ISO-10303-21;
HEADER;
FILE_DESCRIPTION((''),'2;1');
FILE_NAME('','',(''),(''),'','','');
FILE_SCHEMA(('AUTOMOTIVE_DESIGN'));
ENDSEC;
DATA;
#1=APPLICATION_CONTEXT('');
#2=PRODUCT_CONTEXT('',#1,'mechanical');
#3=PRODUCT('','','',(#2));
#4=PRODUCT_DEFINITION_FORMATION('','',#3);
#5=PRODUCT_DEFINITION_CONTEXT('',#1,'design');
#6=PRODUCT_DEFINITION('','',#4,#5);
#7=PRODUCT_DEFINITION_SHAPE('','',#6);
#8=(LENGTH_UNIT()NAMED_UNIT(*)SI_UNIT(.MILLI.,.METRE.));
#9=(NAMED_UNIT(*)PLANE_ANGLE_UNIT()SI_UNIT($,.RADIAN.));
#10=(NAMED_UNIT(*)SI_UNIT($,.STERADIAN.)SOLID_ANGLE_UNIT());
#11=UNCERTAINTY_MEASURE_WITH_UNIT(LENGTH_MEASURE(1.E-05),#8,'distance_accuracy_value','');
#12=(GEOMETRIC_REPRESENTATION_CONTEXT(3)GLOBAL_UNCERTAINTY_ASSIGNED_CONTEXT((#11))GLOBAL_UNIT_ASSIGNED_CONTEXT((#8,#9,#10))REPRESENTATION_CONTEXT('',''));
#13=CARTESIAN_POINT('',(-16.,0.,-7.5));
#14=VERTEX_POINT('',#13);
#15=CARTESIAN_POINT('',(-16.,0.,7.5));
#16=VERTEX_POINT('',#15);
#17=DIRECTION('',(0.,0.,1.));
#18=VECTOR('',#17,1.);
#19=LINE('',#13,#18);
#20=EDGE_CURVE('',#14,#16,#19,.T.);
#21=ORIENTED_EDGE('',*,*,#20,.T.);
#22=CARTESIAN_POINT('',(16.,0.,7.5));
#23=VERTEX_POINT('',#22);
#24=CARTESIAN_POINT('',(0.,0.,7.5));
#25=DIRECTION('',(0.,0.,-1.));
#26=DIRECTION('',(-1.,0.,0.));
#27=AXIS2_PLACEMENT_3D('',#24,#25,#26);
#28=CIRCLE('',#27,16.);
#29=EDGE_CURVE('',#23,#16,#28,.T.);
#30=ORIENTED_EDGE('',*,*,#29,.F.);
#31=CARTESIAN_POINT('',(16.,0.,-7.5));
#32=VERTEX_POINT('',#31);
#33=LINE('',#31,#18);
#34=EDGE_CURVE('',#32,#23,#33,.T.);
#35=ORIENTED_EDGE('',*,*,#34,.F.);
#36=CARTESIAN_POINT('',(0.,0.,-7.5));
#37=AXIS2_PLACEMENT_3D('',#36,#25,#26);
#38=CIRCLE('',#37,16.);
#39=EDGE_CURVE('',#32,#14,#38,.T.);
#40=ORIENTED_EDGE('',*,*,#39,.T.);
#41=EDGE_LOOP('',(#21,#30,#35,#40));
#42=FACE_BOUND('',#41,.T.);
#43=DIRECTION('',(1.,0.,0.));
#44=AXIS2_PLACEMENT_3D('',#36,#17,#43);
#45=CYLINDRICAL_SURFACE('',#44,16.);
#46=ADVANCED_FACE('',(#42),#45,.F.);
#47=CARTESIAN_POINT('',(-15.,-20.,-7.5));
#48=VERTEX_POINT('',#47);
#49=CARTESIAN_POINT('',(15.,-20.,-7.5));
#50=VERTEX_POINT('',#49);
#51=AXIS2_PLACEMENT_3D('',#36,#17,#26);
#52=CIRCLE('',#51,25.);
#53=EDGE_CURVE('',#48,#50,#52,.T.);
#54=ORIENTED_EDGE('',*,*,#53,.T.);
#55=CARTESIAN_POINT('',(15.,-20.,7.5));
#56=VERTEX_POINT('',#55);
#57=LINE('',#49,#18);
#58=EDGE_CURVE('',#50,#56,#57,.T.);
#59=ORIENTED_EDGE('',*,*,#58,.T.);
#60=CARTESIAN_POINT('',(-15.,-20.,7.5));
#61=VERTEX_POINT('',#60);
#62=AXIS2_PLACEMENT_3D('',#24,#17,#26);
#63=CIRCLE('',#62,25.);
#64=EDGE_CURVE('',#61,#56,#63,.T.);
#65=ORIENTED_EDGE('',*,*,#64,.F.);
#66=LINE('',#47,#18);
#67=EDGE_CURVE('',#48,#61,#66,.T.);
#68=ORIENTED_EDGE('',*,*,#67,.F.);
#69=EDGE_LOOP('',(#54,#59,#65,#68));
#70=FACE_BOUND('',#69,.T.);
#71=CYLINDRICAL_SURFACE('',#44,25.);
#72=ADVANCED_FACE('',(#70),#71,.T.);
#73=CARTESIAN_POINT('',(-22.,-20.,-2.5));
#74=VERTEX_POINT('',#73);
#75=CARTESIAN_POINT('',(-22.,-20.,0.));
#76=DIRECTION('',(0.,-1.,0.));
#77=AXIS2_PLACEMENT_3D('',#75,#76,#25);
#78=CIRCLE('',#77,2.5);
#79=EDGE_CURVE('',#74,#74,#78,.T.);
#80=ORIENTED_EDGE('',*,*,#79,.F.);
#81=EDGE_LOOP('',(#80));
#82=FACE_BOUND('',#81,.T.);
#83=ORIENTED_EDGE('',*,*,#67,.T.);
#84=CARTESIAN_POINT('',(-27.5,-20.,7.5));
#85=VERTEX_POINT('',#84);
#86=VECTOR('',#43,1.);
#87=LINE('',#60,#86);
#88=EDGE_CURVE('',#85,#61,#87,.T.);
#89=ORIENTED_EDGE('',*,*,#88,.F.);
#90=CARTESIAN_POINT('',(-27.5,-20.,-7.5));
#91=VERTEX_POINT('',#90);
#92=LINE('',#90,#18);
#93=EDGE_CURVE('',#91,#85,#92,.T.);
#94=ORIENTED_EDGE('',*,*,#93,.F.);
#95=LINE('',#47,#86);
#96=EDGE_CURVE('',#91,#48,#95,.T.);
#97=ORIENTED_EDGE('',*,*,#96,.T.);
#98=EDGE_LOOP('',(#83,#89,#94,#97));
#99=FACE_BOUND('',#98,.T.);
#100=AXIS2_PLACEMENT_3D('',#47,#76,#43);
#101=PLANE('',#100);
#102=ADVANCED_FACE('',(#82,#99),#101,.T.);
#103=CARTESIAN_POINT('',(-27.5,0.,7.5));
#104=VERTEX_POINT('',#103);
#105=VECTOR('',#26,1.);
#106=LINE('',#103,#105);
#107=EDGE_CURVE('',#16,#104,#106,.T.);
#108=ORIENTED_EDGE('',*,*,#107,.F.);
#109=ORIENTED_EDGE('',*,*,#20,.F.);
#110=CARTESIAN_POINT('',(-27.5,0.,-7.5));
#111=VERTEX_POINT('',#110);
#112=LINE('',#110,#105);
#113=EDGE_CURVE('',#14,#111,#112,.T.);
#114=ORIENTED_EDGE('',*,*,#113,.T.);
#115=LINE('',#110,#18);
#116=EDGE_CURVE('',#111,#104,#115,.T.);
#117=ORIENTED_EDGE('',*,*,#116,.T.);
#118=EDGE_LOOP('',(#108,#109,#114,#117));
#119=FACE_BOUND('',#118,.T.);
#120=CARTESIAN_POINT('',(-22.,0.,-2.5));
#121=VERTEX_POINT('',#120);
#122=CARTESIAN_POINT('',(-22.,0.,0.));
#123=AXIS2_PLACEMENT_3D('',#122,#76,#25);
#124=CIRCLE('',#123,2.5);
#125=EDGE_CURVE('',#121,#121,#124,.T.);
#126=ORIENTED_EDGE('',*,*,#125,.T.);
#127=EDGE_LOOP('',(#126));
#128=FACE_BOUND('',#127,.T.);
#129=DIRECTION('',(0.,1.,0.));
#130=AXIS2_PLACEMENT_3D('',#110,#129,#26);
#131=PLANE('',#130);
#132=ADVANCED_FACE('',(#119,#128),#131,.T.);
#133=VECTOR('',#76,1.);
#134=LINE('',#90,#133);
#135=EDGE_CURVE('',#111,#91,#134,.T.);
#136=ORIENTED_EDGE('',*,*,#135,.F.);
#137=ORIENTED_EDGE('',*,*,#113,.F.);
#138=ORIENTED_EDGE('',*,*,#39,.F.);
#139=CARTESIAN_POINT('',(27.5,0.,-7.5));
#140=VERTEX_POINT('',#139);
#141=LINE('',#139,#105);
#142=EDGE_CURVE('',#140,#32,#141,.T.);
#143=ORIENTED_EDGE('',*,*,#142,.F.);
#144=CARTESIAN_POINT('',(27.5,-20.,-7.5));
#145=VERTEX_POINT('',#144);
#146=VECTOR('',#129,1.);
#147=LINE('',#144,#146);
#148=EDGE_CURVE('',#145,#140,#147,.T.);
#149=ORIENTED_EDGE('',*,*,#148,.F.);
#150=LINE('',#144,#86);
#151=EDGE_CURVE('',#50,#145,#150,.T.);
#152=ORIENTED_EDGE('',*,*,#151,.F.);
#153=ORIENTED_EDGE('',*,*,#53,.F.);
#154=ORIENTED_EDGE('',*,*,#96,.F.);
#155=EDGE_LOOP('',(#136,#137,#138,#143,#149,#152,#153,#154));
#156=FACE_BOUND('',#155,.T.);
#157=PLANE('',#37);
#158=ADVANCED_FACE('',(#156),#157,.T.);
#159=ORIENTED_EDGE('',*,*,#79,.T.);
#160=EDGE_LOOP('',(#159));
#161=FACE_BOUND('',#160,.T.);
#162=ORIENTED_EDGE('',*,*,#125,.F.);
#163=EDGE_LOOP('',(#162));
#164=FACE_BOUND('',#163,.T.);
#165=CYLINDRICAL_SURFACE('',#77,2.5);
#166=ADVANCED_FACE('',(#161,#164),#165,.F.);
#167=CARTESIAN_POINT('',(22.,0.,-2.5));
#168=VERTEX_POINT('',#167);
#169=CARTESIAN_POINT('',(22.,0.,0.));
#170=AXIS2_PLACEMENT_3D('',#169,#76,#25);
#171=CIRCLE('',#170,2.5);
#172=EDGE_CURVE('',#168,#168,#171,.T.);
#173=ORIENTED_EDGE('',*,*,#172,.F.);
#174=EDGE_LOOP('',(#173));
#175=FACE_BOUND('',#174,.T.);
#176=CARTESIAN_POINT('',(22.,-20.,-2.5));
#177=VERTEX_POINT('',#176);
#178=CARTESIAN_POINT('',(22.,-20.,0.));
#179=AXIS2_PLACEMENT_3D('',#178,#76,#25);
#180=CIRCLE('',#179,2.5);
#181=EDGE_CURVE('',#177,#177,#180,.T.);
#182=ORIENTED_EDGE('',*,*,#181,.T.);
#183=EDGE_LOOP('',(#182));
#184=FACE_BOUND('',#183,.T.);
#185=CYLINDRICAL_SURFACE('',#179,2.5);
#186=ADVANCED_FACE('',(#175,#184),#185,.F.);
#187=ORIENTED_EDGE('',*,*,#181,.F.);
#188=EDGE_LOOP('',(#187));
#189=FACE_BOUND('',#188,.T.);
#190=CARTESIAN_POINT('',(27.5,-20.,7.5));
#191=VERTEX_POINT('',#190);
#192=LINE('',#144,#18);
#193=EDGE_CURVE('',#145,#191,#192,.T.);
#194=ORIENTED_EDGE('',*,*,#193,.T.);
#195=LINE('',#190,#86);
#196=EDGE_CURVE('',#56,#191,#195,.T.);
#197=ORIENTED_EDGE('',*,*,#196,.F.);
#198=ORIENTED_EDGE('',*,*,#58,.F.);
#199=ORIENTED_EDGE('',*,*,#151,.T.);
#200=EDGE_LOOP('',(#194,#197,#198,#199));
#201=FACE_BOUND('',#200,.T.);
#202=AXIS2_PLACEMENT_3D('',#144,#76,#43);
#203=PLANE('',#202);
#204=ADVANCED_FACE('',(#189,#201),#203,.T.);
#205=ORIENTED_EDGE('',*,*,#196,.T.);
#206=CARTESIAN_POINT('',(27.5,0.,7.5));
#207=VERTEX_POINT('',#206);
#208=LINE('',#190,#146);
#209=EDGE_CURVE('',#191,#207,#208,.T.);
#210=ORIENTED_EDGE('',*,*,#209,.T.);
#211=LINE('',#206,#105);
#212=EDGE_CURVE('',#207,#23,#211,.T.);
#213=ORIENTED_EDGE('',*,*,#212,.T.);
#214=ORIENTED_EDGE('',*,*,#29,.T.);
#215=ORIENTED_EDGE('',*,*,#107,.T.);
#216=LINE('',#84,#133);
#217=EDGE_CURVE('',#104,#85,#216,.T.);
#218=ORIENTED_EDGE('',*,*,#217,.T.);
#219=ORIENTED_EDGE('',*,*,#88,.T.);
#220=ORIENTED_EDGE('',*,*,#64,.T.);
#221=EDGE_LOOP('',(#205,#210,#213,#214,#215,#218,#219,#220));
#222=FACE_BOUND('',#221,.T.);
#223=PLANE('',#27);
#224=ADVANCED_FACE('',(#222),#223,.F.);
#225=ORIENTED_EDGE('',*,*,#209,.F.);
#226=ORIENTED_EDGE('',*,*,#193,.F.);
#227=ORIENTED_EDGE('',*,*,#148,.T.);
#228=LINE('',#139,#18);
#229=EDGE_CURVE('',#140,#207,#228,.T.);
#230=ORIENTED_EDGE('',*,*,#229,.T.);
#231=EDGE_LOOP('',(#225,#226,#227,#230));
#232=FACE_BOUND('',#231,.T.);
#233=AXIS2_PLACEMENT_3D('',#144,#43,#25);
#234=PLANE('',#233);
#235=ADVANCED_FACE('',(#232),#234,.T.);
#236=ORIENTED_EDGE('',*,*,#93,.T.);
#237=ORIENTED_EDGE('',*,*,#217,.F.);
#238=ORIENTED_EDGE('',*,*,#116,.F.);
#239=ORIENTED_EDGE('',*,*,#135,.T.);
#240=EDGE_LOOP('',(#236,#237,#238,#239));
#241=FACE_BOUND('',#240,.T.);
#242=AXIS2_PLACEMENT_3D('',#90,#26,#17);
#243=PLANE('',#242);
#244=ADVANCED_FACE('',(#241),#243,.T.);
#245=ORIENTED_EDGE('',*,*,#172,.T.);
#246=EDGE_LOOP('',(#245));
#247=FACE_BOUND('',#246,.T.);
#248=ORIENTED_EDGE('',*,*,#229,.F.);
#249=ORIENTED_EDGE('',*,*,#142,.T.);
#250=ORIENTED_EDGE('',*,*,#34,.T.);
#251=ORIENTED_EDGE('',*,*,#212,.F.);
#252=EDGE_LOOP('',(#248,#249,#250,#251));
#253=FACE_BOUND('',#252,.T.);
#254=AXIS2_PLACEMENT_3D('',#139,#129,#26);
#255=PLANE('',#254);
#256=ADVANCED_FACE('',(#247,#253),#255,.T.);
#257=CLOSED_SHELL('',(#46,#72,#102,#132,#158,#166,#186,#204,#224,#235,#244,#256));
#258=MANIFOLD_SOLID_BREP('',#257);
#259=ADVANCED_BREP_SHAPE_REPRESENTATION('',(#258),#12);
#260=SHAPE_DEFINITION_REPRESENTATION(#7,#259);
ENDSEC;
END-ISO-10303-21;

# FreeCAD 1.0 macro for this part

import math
import FreeCAD as App
import Part
import Sketcher
from FreeCAD import Vector
Q = App.Units.Quantity

doc = App.newDocument("Part")
params = doc.addObject("Spreadsheet::Sheet", "Params")
for row, (alias, value) in enumerate([
    ("sketch1_radius", "25 mm"),
    ("sketch1_radius2", "16 mm"),
    ("sketch1_height", "20 mm"),
    ("sketch1_width", "11.5 mm"),
    ("pad1_length", "7.5 mm"),
    ("pad1_length2", "7.5 mm"),
    ("sketch2_diameter", "5 mm"),
    ("hole_diameter", "5 mm"),
], start=1):
    params.set(f"A{row}", alias)
    params.set(f"B{row}", "=" + value)
    params.setAlias(f"B{row}", alias)

body = doc.addObject("PartDesign::Body", "Body")

sketch1 = doc.addObject("Sketcher::SketchObject", "Sketch")
body.addObject(sketch1)
sketch1.AttachmentSupport = (doc.XY_Plane, [""])
sketch1.MapMode = "FlatFace"
sketch1.addGeometry(Part.LineSegment(Vector(-16, 0, 0), Vector(-28, 0, 0)), False)
sketch1.addGeometry(Part.LineSegment(Vector(-28, 0, 0), Vector(-28, -20, 0)), False)
sketch1.addGeometry(Part.LineSegment(Vector(-28, -20, 0), Vector(-15, -20, 0)), False)
sketch1.addGeometry(Part.ArcOfCircle(Part.Circle(Vector(0, 0, 0), Vector(0, 0, 1), 25), math.radians(-127), math.radians(-53)), False)
sketch1.addGeometry(Part.LineSegment(Vector(15, -20, 0), Vector(28, -20, 0)), False)
sketch1.addGeometry(Part.LineSegment(Vector(28, -20, 0), Vector(28, 0, 0)), False)
sketch1.addGeometry(Part.LineSegment(Vector(28, 0, 0), Vector(16, 0, 0)), False)
sketch1.addGeometry(Part.ArcOfCircle(Part.Circle(Vector(0, 0, 0), Vector(0, 0, 1), 16), math.radians(180), math.radians(360)), False)
sketch1.addConstraint(Sketcher.Constraint("Coincident", 0, 2, 1, 1))
sketch1.addConstraint(Sketcher.Constraint("Coincident", 1, 2, 2, 1))
sketch1.addConstraint(Sketcher.Constraint("Coincident", 2, 2, 3, 1))
sketch1.addConstraint(Sketcher.Constraint("Coincident", 3, 2, 4, 1))
sketch1.addConstraint(Sketcher.Constraint("Coincident", 4, 2, 5, 1))
sketch1.addConstraint(Sketcher.Constraint("Coincident", 5, 2, 6, 1))
sketch1.addConstraint(Sketcher.Constraint("Coincident", 6, 2, 7, 2))
sketch1.addConstraint(Sketcher.Constraint("Coincident", 7, 1, 0, 1))
sketch1.addConstraint(Sketcher.Constraint("Horizontal", 0))
sketch1.addConstraint(Sketcher.Constraint("Vertical", 1))
sketch1.addConstraint(Sketcher.Constraint("Horizontal", 2))
sketch1.addConstraint(Sketcher.Constraint("Horizontal", 4))
sketch1.addConstraint(Sketcher.Constraint("Vertical", 5))
sketch1.addConstraint(Sketcher.Constraint("Horizontal", 6))
sketch1.addConstraint(Sketcher.Constraint("Coincident", 3, 3, -1, 1))
sketch1.addConstraint(Sketcher.Constraint("Coincident", 7, 3, -1, 1))
sketch1.addConstraint(Sketcher.Constraint("Symmetric", 0, 2, 5, 2, -1, 1))
sketch1.addConstraint(Sketcher.Constraint("PointOnObject", 0, 2, -1))
sketch1.addConstraint(Sketcher.Constraint("Horizontal", 2, 2, 3, 2))
sketch1.addConstraint(Sketcher.Constraint("Radius", 3, Q("25 mm")))
sketch1.addConstraint(Sketcher.Constraint("Radius", 7, Q("16 mm")))
sketch1.addConstraint(Sketcher.Constraint("DistanceY", 1, 2, 1, 1, Q("20 mm")))
sketch1.addConstraint(Sketcher.Constraint("DistanceX", 0, 2, 0, 1, Q("11.5 mm")))
sketch1.setExpression("Constraints[19]", "Params.sketch1_radius")
sketch1.setExpression("Constraints[20]", "Params.sketch1_radius2")
sketch1.setExpression("Constraints[21]", "Params.sketch1_height")
sketch1.setExpression("Constraints[22]", "Params.sketch1_width")
pad1 = doc.addObject("PartDesign::Pad", "Pad")
body.addObject(pad1)
pad1.Profile = sketch1
pad1.Type = "TwoLengths"
pad1.setExpression("Length", "Params.pad1_length")
pad1.setExpression("Length2", "Params.pad1_length2")

sketch2 = doc.addObject("Sketcher::SketchObject", "Sketch001")
body.addObject(sketch2)
sketch2.AttachmentSupport = (doc.XZ_Plane, [""])
sketch2.MapMode = "FlatFace"
sketch2.AttachmentOffset = App.Placement(Vector(0, 0, 20), App.Rotation())
sketch2.addGeometry(Part.Circle(Vector(-22, 0, 0), Vector(0, 0, 1), 2.5), False)
sketch2.addGeometry(Part.Circle(Vector(22, 0, 0), Vector(0, 0, 1), 2.5), False)
sketch2.addConstraint(Sketcher.Constraint("Equal", 0, 1))
sketch2.addConstraint(Sketcher.Constraint("Symmetric", 0, 3, 1, 3, -1, 1))
sketch2.addConstraint(Sketcher.Constraint("PointOnObject", 0, 3, -1))
sketch2.addConstraint(Sketcher.Constraint("Diameter", 0, Q("5 mm")))
sketch2.addConstraint(Sketcher.Constraint("DistanceX", 0, 3, -1, 1, Q("22 mm")))
sketch2.setExpression("Constraints[3]", "Params.sketch2_diameter")
doc.recompute()
hole = doc.addObject("PartDesign::Hole", "Hole")
body.addObject(hole)
hole.Profile = sketch2
hole.ThreadType = "None"
hole.setExpression("Diameter", "Params.hole_diameter")
hole.DepthType = "ThroughAll"

doc.recompute()
